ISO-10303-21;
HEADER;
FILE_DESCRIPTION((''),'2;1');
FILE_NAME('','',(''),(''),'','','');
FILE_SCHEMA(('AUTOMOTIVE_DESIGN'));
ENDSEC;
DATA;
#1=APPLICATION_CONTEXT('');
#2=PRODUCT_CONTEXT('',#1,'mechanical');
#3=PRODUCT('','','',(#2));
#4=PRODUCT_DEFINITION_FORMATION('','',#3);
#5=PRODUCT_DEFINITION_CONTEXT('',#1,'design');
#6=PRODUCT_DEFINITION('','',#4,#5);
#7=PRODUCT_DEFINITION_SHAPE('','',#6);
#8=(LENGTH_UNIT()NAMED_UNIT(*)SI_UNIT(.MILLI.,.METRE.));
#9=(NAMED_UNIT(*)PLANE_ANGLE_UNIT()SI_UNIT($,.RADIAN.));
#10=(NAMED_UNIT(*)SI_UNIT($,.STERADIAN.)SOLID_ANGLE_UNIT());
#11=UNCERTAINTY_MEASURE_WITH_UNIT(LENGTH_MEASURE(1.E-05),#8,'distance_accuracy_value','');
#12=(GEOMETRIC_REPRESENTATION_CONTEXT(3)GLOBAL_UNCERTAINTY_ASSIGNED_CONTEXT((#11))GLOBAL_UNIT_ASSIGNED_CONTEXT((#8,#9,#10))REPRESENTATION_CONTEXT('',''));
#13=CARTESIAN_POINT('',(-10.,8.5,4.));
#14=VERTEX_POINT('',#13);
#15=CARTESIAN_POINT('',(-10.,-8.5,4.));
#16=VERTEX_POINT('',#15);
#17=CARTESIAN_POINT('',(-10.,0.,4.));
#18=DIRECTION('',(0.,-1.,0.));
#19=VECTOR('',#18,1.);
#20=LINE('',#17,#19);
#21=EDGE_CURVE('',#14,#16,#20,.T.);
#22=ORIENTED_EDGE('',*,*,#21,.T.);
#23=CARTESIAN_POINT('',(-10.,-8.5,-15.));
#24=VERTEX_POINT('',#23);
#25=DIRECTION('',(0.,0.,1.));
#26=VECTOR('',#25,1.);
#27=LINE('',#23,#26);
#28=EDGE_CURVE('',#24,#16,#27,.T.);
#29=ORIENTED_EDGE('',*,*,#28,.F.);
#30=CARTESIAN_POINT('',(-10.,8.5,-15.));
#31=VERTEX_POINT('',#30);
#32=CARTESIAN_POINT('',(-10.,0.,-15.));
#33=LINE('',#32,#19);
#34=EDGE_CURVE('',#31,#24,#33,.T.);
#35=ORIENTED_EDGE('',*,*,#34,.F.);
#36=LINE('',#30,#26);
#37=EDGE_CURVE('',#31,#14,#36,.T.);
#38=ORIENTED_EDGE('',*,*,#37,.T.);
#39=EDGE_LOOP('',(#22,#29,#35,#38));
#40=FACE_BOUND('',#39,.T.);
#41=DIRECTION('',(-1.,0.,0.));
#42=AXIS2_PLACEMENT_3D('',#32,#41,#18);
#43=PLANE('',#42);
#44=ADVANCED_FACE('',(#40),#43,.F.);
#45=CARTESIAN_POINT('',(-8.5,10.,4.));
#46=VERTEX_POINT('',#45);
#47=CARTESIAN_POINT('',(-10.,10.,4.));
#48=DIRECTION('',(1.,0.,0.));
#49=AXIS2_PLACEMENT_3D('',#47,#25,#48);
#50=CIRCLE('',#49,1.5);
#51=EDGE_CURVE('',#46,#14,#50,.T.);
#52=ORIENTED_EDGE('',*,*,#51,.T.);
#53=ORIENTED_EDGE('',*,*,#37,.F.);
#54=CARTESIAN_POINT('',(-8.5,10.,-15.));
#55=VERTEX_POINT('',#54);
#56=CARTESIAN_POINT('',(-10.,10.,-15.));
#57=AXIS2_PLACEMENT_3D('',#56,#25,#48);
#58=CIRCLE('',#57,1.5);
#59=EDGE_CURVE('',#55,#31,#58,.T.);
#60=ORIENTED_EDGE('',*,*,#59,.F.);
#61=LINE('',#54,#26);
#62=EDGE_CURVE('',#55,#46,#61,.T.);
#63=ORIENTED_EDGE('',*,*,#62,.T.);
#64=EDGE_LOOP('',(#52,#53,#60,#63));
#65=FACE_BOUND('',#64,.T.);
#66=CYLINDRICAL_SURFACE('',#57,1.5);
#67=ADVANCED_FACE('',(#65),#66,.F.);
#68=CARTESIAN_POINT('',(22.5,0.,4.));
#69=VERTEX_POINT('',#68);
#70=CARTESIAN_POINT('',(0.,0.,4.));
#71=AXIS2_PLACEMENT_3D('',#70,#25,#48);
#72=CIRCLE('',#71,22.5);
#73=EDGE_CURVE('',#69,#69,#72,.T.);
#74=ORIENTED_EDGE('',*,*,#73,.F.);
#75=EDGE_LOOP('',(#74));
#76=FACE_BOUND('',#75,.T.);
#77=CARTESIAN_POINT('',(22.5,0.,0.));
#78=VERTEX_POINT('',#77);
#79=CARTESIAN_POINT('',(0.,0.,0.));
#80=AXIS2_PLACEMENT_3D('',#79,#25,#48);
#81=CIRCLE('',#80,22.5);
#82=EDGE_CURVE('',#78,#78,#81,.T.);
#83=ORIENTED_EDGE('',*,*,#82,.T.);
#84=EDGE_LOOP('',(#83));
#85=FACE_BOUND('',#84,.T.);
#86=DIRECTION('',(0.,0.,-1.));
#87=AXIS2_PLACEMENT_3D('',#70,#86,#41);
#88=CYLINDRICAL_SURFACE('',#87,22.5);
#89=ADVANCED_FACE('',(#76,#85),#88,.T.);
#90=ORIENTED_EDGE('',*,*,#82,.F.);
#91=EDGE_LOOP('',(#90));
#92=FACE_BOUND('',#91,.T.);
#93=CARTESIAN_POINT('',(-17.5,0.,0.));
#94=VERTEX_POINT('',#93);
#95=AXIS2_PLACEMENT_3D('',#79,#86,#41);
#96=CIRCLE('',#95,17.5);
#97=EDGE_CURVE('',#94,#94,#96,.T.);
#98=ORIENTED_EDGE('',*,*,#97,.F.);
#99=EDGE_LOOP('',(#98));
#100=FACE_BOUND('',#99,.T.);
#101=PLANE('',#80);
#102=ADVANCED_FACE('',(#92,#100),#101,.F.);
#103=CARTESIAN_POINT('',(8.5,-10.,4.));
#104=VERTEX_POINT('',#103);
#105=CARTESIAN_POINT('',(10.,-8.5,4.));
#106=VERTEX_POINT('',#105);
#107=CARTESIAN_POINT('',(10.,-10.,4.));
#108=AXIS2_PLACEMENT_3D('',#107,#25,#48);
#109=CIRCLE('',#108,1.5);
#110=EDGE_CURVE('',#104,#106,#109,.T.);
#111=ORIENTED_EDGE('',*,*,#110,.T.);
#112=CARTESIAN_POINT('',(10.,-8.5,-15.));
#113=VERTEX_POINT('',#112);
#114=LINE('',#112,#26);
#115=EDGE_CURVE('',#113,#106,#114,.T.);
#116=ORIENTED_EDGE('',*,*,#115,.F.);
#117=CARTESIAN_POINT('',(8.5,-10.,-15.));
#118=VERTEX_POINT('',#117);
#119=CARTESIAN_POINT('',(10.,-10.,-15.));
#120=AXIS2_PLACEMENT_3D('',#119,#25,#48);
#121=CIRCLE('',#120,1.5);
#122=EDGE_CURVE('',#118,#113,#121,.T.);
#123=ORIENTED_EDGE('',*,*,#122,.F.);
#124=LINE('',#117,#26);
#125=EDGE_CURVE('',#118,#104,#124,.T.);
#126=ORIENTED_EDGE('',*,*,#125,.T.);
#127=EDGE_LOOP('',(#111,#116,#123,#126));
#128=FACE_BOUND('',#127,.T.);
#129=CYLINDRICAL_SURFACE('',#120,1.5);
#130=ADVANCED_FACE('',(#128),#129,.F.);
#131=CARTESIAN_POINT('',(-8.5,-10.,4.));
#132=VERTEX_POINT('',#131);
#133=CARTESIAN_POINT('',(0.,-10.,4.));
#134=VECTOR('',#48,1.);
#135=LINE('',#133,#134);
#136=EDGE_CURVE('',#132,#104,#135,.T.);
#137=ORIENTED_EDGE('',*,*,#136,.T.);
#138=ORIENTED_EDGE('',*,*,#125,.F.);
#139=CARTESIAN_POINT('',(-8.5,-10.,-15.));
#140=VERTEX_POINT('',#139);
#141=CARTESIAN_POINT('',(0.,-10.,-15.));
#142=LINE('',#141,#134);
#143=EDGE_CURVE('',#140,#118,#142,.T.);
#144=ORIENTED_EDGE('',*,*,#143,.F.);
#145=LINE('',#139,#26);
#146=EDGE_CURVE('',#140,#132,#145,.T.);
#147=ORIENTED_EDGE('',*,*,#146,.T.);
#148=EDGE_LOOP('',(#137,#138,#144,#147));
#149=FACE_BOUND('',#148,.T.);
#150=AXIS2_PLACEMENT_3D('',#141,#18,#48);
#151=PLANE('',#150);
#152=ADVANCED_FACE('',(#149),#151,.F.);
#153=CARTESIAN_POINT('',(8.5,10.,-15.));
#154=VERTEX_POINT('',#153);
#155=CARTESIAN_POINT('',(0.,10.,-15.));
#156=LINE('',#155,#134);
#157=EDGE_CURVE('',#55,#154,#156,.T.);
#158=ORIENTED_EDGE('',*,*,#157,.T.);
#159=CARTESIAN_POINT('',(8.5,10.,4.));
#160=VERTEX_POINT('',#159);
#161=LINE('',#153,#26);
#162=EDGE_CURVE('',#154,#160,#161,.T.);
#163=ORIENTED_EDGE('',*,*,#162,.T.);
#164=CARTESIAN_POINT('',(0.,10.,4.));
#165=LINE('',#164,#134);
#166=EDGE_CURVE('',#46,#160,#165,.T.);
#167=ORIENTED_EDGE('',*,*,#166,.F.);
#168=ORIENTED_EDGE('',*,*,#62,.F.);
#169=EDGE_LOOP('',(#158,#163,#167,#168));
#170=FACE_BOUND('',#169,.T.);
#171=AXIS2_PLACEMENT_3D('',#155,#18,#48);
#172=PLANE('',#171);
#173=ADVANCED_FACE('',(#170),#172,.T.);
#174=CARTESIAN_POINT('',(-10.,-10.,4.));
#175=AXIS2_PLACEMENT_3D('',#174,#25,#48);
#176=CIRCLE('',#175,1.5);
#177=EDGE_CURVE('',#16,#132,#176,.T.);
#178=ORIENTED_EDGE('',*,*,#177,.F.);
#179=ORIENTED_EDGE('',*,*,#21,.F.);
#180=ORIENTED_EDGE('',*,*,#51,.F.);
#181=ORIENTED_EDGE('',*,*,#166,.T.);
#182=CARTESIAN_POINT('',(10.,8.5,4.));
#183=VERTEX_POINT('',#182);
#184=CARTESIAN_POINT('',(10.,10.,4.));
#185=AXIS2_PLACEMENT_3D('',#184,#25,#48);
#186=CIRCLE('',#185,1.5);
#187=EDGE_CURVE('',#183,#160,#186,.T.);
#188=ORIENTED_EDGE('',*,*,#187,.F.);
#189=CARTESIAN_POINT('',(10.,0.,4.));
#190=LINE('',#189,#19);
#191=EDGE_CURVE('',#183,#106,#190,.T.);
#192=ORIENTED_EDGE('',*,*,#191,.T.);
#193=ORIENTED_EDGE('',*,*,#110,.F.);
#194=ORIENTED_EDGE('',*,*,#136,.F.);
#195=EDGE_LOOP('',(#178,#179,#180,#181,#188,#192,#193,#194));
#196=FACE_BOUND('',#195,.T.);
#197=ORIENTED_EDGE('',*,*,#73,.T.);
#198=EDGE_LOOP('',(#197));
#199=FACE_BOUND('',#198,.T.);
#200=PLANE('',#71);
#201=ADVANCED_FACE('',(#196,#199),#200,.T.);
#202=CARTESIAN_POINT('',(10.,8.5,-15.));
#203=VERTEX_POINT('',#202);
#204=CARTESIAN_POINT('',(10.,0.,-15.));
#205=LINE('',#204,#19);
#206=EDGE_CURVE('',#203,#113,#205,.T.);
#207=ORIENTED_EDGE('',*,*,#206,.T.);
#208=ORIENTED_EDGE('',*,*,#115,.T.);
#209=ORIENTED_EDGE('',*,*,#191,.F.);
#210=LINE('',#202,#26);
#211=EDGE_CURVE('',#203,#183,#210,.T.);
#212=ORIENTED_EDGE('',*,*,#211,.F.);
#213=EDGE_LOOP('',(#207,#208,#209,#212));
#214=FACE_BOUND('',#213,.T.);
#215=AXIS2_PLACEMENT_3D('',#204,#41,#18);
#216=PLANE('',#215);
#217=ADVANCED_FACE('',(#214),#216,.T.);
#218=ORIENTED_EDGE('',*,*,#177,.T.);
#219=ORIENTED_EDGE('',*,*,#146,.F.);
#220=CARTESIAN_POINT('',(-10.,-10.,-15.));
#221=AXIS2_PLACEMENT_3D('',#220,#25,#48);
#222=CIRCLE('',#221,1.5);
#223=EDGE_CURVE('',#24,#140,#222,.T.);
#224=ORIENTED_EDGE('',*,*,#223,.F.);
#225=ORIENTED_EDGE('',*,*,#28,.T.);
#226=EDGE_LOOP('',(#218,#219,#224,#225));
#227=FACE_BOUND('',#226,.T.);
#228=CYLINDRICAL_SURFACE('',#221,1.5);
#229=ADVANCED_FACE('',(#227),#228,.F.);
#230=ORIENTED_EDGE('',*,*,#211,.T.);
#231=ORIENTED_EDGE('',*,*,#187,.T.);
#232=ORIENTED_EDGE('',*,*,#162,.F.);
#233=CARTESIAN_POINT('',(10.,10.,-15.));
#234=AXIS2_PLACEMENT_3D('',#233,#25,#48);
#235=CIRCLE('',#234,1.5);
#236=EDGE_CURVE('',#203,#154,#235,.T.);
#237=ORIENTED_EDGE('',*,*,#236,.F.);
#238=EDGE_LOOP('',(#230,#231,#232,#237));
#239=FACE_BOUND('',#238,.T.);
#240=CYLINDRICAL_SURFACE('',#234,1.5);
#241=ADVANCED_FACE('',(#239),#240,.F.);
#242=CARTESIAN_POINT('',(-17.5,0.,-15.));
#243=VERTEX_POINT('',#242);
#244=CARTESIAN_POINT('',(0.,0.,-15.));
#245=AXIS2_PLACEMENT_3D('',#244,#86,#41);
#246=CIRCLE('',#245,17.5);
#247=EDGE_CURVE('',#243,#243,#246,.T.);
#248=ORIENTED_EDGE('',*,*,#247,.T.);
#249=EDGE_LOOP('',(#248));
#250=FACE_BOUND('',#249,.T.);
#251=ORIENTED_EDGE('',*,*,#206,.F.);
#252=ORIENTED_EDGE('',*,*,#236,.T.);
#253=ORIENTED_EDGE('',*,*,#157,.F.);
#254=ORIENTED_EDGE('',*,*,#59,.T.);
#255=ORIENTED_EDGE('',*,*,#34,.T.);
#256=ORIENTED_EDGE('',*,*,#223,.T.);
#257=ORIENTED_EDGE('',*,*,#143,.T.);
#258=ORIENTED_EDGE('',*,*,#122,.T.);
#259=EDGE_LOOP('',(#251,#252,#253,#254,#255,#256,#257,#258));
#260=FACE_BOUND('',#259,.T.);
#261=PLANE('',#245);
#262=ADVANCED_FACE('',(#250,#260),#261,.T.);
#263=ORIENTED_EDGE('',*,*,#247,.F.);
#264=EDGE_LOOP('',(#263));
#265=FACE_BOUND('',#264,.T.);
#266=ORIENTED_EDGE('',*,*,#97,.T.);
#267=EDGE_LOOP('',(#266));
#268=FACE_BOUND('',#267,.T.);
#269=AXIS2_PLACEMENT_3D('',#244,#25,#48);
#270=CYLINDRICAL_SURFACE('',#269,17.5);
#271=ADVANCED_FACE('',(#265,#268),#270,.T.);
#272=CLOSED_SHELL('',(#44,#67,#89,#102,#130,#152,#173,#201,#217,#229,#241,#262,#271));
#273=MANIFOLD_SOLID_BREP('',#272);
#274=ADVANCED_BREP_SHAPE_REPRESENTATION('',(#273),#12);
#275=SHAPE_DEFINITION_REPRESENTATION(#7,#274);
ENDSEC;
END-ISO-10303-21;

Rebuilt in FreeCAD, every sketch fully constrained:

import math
import FreeCAD as App
import Part
import Sketcher

doc = App.newDocument("Part")
params = doc.addObject("Spreadsheet::Sheet", "Params")
for row, (alias, value) in enumerate([
    ("sketch1_diameter", "45 mm"),
    ("pad1_length", "4 mm"),
    ("sketch2_diameter", "35 mm"),
    ("pad2_length", "15 mm"),
    ("sketch3_radius", "1.5 mm"),
    ("sketch3_width", "17 mm"),
], start=1):
    params.set(f"A{row}", alias)
    params.set(f"B{row}", "=" + value)
    params.setAlias(f"B{row}", alias)

body = doc.addObject("PartDesign::Body", "Body")

sketch1 = body.newObject("Sketcher::SketchObject", "Sketch")
sketch1.AttachmentSupport = (doc.getObject("XY_Plane"), [""])
sketch1.MapMode = "FlatFace"
sketch1.addGeometry(Part.Circle(App.Vector(0, 0, 0), App.Vector(0, 0, 1), 22), False)
sketch1.addConstraint([
    Sketcher.Constraint("Coincident", 0, 3, -1, 1),
    Sketcher.Constraint("Diameter", 0, 45.0),
])
sketch1.setExpression("Constraints[1]", "Params.sketch1_diameter")
pad1 = body.newObject("PartDesign::Pad", "Pad")
pad1.Profile = sketch1
pad1.setExpression("Length", "Params.pad1_length")

sketch2 = body.newObject("Sketcher::SketchObject", "Sketch001")
sketch2.AttachmentSupport = (doc.getObject("XY_Plane"), [""])
sketch2.MapMode = "FlatFace"
sketch2.addGeometry(Part.Circle(App.Vector(0, 0, 0), App.Vector(0, 0, 1), 18), False)
sketch2.addConstraint([
    Sketcher.Constraint("Coincident", 0, 3, -1, 1),
    Sketcher.Constraint("Diameter", 0, 35.0),
])
sketch2.setExpression("Constraints[1]", "Params.sketch2_diameter")
pad2 = body.newObject("PartDesign::Pad", "Pad001")
pad2.Profile = sketch2
pad2.setExpression("Length", "Params.pad2_length")
pad2.Reversed = True

sketch3 = body.newObject("Sketcher::SketchObject", "Sketch002")
sketch3.AttachmentSupport = (doc.getObject("XY_Plane"), [""])
sketch3.MapMode = "FlatFace"
sketch3.AttachmentOffset = App.Placement(App.Vector(0, 0, 4), App.Rotation())
sketch3.addGeometry([
    Part.LineSegment(App.Vector(-10, 8.5, 0), App.Vector(-10, -8.5, 0)),
    Part.ArcOfCircle(Part.Circle(App.Vector(-10, -10, 0), App.Vector(0, 0, 1), 1.5), math.radians(90), math.radians(360)),
    Part.LineSegment(App.Vector(-8.5, -10, 0), App.Vector(8.5, -10, 0)),
    Part.ArcOfCircle(Part.Circle(App.Vector(10, -10, 0), App.Vector(0, 0, 1), 1.5), math.radians(180), math.radians(450)),
    Part.LineSegment(App.Vector(10, -8.5, 0), App.Vector(10, 8.5, 0)),
    Part.ArcOfCircle(Part.Circle(App.Vector(10, 10, 0), App.Vector(0, 0, 1), 1.5), math.radians(-90), math.radians(180)),
    Part.LineSegment(App.Vector(8.5, 10, 0), App.Vector(-8.5, 10, 0)),
    Part.ArcOfCircle(Part.Circle(App.Vector(-10, 10, 0), App.Vector(0, 0, 1), 1.5), math.radians(0), math.radians(270)),
], False)
sketch3.addConstraint([
    Sketcher.Constraint("Coincident", 0, 2, 1, 1),
    Sketcher.Constraint("Coincident", 1, 2, 2, 1),
    Sketcher.Constraint("Coincident", 2, 2, 3, 1),
    Sketcher.Constraint("Coincident", 3, 2, 4, 1),
    Sketcher.Constraint("Coincident", 4, 2, 5, 1),
    Sketcher.Constraint("Coincident", 5, 2, 6, 1),
    Sketcher.Constraint("Coincident", 6, 2, 7, 1),
    Sketcher.Constraint("Coincident", 7, 2, 0, 1),
    Sketcher.Constraint("Vertical", 0),
    Sketcher.Constraint("Horizontal", 2),
    Sketcher.Constraint("Vertical", 4),
    Sketcher.Constraint("Horizontal", 6),
    Sketcher.Constraint("Equal", 1, 3),
    Sketcher.Constraint("Equal", 3, 5),
    Sketcher.Constraint("Equal", 5, 7),
    Sketcher.Constraint("Symmetric", 1, 3, 5, 3, -1, 1),
    Sketcher.Constraint("Symmetric", 3, 3, 7, 3, -1, 1),
    Sketcher.Constraint("Symmetric", 1, 3, 3, 3, -2),
    Sketcher.Constraint("Horizontal", 3, 3, 1, 2),
    Sketcher.Constraint("Horizontal", 7, 3, 5, 2),
    Sketcher.Constraint("Vertical", 7, 3, 0, 2),
    Sketcher.Constraint("Vertical", 5, 3, 3, 2),
    Sketcher.Constraint("Equal", 6, 0),
    Sketcher.Constraint("Radius", 1, 1.5),
    Sketcher.Constraint("DistanceX", 2, 1, 2, 2, 17.0),
])
sketch3.setExpression("Constraints[23]", "Params.sketch3_radius")
sketch3.setExpression("Constraints[24]", "Params.sketch3_width")
pocket1 = body.newObject("PartDesign::Pocket", "Pocket")
pocket1.Profile = sketch3
pocket1.Type = "ThroughAll"

doc.recompute()
